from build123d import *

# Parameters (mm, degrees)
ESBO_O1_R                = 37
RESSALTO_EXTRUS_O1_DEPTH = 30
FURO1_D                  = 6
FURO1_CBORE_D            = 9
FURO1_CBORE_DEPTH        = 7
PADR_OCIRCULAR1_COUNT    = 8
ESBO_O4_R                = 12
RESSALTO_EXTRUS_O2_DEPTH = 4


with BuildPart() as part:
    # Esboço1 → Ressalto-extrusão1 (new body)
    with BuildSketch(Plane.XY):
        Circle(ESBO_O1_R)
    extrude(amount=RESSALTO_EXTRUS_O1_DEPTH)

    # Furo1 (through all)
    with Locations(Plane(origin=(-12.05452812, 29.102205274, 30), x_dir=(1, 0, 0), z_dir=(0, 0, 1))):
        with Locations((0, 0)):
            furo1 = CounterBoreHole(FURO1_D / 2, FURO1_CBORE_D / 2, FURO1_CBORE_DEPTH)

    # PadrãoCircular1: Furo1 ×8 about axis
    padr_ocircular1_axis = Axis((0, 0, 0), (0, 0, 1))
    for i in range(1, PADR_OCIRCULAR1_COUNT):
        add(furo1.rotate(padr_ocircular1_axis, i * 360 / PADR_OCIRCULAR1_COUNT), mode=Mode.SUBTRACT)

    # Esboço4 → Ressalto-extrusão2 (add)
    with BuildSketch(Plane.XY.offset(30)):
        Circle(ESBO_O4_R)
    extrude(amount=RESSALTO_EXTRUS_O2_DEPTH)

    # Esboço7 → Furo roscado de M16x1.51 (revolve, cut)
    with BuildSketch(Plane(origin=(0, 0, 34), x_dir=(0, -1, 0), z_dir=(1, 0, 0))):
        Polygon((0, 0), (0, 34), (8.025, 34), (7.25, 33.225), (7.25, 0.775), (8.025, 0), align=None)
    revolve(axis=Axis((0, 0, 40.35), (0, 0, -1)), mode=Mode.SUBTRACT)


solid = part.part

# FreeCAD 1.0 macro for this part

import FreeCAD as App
import Part
import Sketcher
from FreeCAD import Vector

doc = App.newDocument("Part")
params = doc.addObject("Spreadsheet::Sheet", "Params")
for row, (alias, value) in enumerate([
    ("sketch1_diameter", "74 mm"),
    ("pad1_length", "30 mm"),
    ("sketch2_diameter", "6 mm"),
    ("hole_diameter", "6 mm"),
    ("hole_cbore_diameter", "9 mm"),
    ("hole_cbore_depth", "7 mm"),
    ("sketch3_diameter", "24 mm"),
    ("pad2_length", "4 mm"),
    ("sketch4_height", "34 mm"),
    ("sketch4_height2", "32.45 mm"),
    ("groove_angle", "360 deg"),
], start=1):
    params.set(f"A{row}", alias)
    params.set(f"B{row}", "=" + value)
    params.setAlias(f"B{row}", alias)

body = doc.addObject("PartDesign::Body", "Body")

# Sketch on XY plane
sketch1 = doc.addObject("Sketcher::SketchObject", "Sketch")
body.addObject(sketch1)
sketch1.AttachmentSupport = (doc.XY_Plane, [""])
sketch1.MapMode = "FlatFace"
sketch1.addGeometry(Part.Circle(Vector(0, 0, 0), Vector(0, 0, 1), 37), False)
sketch1.addConstraint(Sketcher.Constraint("Coincident", 0, 3, -1, 1))
sketch1.addConstraint(Sketcher.Constraint("Diameter", 0, 74.0))
sketch1.setExpression("Constraints[1]", "Params.sketch1_diameter")
pad1 = doc.addObject("PartDesign::Pad", "Pad")
body.addObject(pad1)
pad1.Profile = sketch1
pad1.setExpression("Length", "Params.pad1_length")

# Sketch on XY plane
sketch2 = doc.addObject("Sketcher::SketchObject", "Sketch001")
body.addObject(sketch2)
sketch2.AttachmentSupport = (doc.XY_Plane, [""])
sketch2.MapMode = "FlatFace"
sketch2.AttachmentOffset = App.Placement(Vector(0, 0, 30), App.Rotation())
sketch2.addGeometry(Part.Circle(Vector(-12.054528, 29.102205, 0), Vector(0, 0, 1), 3), False)
sketch2.addConstraint(Sketcher.Constraint("Diameter", 0, 6.0))
sketch2.addConstraint(Sketcher.Constraint("DistanceX", 0, 3, -1, 1, 12.054528))
sketch2.addConstraint(Sketcher.Constraint("DistanceY", -1, 1, 0, 3, 29.102205))
sketch2.setExpression("Constraints[0]", "Params.sketch2_diameter")
doc.recompute()
hole = doc.addObject("PartDesign::Hole", "Hole")
body.addObject(hole)
hole.Profile = sketch2
hole.ThreadType = "None"
hole.setExpression("Diameter", "Params.hole_diameter")
hole.DepthType = "ThroughAll"
hole.HoleCutType = "Counterbore"
hole.setExpression("HoleCutDiameter", "Params.hole_cbore_diameter")
hole.setExpression("HoleCutDepth", "Params.hole_cbore_depth")
doc.recompute()

polarpattern = doc.addObject("PartDesign::PolarPattern", "PolarPattern")
body.addObject(polarpattern)
polarpattern.Originals = [hole]
polarpattern.Axis = (doc.Z_Axis, [""])
polarpattern.Angle = 360
polarpattern.Occurrences = 8
body.Tip = polarpattern

# Sketch on XY plane
sketch3 = doc.addObject("Sketcher::SketchObject", "Sketch002")
body.addObject(sketch3)
sketch3.AttachmentSupport = (doc.XY_Plane, [""])
sketch3.MapMode = "FlatFace"
sketch3.AttachmentOffset = App.Placement(Vector(0, 0, 30), App.Rotation())
sketch3.addGeometry(Part.Circle(Vector(0, 0, 0), Vector(0, 0, 1), 12), False)
sketch3.addConstraint(Sketcher.Constraint("Coincident", 0, 3, -1, 1))
sketch3.addConstraint(Sketcher.Constraint("Diameter", 0, 24.0))
sketch3.setExpression("Constraints[1]", "Params.sketch3_diameter")
pad2 = doc.addObject("PartDesign::Pad", "Pad001")
body.addObject(pad2)
pad2.Profile = sketch3
pad2.setExpression("Length", "Params.pad2_length")

# Sketch on YZ plane
sketch4 = doc.addObject("Sketcher::SketchObject", "Sketch003")
body.addObject(sketch4)
sketch4.AttachmentSupport = (doc.YZ_Plane, [""])
sketch4.MapMode = "FlatFace"
sketch4.addGeometry(Part.LineSegment(Vector(0, 0, 0), Vector(0, 34, 0)), False)
sketch4.addGeometry(Part.LineSegment(Vector(0, 34, 0), Vector(-8.025, 34, 0)), False)
sketch4.addGeometry(Part.LineSegment(Vector(-8.025, 34, 0), Vector(-7.25, 33.225, 0)), False)
sketch4.addGeometry(Part.LineSegment(Vector(-7.25, 33.225, 0), Vector(-7.25, 0.775, 0)), False)
sketch4.addGeometry(Part.LineSegment(Vector(-7.25, 0.775, 0), Vector(-8.025, 0, 0)), False)
sketch4.addGeometry(Part.LineSegment(Vector(-8.025, 0, 0), Vector(0, 0, 0)), False)
sketch4.addConstraint(Sketcher.Constraint("Coincident", 0, 2, 1, 1))
sketch4.addConstraint(Sketcher.Constraint("Coincident", 1, 2, 2, 1))
sketch4.addConstraint(Sketcher.Constraint("Coincident", 2, 2, 3, 1))
sketch4.addConstraint(Sketcher.Constraint("Coincident", 3, 2, 4, 1))
sketch4.addConstraint(Sketcher.Constraint("Coincident", 4, 2, 5, 1))
sketch4.addConstraint(Sketcher.Constraint("Coincident", 5, 2, 0, 1))
sketch4.addConstraint(Sketcher.Constraint("Vertical", 0))
sketch4.addConstraint(Sketcher.Constraint("Horizontal", 1))
sketch4.addConstraint(Sketcher.Constraint("Vertical", 3))
sketch4.addConstraint(Sketcher.Constraint("Horizontal", 5))
sketch4.addConstraint(Sketcher.Constraint("Coincident", 5, 2, -1, 1))
sketch4.addConstraint(Sketcher.Constraint("Perpendicular", 2, 4))
sketch4.addConstraint(Sketcher.Constraint("Vertical", 1, 2, 4, 2))
sketch4.addConstraint(Sketcher.Constraint("Equal", 2, 4))
sketch4.addConstraint(Sketcher.Constraint("DistanceY", 0, 1, 0, 2, 34.0))
sketch4.addConstraint(Sketcher.Constraint("DistanceY", 3, 2, 3, 1, 32.45))
sketch4.addConstraint(Sketcher.Constraint("DistanceX", 1, 2, 1, 1, 8.025))
sketch4.setExpression("Constraints[14]", "Params.sketch4_height")
sketch4.setExpression("Constraints[15]", "Params.sketch4_height2")
groove = doc.addObject("PartDesign::Groove", "Groove")
body.addObject(groove)
groove.Profile = sketch4
groove.ReferenceAxis = (sketch4, ["V_Axis"])
groove.setExpression("Angle", "Params.groove_angle")

doc.recompute()
